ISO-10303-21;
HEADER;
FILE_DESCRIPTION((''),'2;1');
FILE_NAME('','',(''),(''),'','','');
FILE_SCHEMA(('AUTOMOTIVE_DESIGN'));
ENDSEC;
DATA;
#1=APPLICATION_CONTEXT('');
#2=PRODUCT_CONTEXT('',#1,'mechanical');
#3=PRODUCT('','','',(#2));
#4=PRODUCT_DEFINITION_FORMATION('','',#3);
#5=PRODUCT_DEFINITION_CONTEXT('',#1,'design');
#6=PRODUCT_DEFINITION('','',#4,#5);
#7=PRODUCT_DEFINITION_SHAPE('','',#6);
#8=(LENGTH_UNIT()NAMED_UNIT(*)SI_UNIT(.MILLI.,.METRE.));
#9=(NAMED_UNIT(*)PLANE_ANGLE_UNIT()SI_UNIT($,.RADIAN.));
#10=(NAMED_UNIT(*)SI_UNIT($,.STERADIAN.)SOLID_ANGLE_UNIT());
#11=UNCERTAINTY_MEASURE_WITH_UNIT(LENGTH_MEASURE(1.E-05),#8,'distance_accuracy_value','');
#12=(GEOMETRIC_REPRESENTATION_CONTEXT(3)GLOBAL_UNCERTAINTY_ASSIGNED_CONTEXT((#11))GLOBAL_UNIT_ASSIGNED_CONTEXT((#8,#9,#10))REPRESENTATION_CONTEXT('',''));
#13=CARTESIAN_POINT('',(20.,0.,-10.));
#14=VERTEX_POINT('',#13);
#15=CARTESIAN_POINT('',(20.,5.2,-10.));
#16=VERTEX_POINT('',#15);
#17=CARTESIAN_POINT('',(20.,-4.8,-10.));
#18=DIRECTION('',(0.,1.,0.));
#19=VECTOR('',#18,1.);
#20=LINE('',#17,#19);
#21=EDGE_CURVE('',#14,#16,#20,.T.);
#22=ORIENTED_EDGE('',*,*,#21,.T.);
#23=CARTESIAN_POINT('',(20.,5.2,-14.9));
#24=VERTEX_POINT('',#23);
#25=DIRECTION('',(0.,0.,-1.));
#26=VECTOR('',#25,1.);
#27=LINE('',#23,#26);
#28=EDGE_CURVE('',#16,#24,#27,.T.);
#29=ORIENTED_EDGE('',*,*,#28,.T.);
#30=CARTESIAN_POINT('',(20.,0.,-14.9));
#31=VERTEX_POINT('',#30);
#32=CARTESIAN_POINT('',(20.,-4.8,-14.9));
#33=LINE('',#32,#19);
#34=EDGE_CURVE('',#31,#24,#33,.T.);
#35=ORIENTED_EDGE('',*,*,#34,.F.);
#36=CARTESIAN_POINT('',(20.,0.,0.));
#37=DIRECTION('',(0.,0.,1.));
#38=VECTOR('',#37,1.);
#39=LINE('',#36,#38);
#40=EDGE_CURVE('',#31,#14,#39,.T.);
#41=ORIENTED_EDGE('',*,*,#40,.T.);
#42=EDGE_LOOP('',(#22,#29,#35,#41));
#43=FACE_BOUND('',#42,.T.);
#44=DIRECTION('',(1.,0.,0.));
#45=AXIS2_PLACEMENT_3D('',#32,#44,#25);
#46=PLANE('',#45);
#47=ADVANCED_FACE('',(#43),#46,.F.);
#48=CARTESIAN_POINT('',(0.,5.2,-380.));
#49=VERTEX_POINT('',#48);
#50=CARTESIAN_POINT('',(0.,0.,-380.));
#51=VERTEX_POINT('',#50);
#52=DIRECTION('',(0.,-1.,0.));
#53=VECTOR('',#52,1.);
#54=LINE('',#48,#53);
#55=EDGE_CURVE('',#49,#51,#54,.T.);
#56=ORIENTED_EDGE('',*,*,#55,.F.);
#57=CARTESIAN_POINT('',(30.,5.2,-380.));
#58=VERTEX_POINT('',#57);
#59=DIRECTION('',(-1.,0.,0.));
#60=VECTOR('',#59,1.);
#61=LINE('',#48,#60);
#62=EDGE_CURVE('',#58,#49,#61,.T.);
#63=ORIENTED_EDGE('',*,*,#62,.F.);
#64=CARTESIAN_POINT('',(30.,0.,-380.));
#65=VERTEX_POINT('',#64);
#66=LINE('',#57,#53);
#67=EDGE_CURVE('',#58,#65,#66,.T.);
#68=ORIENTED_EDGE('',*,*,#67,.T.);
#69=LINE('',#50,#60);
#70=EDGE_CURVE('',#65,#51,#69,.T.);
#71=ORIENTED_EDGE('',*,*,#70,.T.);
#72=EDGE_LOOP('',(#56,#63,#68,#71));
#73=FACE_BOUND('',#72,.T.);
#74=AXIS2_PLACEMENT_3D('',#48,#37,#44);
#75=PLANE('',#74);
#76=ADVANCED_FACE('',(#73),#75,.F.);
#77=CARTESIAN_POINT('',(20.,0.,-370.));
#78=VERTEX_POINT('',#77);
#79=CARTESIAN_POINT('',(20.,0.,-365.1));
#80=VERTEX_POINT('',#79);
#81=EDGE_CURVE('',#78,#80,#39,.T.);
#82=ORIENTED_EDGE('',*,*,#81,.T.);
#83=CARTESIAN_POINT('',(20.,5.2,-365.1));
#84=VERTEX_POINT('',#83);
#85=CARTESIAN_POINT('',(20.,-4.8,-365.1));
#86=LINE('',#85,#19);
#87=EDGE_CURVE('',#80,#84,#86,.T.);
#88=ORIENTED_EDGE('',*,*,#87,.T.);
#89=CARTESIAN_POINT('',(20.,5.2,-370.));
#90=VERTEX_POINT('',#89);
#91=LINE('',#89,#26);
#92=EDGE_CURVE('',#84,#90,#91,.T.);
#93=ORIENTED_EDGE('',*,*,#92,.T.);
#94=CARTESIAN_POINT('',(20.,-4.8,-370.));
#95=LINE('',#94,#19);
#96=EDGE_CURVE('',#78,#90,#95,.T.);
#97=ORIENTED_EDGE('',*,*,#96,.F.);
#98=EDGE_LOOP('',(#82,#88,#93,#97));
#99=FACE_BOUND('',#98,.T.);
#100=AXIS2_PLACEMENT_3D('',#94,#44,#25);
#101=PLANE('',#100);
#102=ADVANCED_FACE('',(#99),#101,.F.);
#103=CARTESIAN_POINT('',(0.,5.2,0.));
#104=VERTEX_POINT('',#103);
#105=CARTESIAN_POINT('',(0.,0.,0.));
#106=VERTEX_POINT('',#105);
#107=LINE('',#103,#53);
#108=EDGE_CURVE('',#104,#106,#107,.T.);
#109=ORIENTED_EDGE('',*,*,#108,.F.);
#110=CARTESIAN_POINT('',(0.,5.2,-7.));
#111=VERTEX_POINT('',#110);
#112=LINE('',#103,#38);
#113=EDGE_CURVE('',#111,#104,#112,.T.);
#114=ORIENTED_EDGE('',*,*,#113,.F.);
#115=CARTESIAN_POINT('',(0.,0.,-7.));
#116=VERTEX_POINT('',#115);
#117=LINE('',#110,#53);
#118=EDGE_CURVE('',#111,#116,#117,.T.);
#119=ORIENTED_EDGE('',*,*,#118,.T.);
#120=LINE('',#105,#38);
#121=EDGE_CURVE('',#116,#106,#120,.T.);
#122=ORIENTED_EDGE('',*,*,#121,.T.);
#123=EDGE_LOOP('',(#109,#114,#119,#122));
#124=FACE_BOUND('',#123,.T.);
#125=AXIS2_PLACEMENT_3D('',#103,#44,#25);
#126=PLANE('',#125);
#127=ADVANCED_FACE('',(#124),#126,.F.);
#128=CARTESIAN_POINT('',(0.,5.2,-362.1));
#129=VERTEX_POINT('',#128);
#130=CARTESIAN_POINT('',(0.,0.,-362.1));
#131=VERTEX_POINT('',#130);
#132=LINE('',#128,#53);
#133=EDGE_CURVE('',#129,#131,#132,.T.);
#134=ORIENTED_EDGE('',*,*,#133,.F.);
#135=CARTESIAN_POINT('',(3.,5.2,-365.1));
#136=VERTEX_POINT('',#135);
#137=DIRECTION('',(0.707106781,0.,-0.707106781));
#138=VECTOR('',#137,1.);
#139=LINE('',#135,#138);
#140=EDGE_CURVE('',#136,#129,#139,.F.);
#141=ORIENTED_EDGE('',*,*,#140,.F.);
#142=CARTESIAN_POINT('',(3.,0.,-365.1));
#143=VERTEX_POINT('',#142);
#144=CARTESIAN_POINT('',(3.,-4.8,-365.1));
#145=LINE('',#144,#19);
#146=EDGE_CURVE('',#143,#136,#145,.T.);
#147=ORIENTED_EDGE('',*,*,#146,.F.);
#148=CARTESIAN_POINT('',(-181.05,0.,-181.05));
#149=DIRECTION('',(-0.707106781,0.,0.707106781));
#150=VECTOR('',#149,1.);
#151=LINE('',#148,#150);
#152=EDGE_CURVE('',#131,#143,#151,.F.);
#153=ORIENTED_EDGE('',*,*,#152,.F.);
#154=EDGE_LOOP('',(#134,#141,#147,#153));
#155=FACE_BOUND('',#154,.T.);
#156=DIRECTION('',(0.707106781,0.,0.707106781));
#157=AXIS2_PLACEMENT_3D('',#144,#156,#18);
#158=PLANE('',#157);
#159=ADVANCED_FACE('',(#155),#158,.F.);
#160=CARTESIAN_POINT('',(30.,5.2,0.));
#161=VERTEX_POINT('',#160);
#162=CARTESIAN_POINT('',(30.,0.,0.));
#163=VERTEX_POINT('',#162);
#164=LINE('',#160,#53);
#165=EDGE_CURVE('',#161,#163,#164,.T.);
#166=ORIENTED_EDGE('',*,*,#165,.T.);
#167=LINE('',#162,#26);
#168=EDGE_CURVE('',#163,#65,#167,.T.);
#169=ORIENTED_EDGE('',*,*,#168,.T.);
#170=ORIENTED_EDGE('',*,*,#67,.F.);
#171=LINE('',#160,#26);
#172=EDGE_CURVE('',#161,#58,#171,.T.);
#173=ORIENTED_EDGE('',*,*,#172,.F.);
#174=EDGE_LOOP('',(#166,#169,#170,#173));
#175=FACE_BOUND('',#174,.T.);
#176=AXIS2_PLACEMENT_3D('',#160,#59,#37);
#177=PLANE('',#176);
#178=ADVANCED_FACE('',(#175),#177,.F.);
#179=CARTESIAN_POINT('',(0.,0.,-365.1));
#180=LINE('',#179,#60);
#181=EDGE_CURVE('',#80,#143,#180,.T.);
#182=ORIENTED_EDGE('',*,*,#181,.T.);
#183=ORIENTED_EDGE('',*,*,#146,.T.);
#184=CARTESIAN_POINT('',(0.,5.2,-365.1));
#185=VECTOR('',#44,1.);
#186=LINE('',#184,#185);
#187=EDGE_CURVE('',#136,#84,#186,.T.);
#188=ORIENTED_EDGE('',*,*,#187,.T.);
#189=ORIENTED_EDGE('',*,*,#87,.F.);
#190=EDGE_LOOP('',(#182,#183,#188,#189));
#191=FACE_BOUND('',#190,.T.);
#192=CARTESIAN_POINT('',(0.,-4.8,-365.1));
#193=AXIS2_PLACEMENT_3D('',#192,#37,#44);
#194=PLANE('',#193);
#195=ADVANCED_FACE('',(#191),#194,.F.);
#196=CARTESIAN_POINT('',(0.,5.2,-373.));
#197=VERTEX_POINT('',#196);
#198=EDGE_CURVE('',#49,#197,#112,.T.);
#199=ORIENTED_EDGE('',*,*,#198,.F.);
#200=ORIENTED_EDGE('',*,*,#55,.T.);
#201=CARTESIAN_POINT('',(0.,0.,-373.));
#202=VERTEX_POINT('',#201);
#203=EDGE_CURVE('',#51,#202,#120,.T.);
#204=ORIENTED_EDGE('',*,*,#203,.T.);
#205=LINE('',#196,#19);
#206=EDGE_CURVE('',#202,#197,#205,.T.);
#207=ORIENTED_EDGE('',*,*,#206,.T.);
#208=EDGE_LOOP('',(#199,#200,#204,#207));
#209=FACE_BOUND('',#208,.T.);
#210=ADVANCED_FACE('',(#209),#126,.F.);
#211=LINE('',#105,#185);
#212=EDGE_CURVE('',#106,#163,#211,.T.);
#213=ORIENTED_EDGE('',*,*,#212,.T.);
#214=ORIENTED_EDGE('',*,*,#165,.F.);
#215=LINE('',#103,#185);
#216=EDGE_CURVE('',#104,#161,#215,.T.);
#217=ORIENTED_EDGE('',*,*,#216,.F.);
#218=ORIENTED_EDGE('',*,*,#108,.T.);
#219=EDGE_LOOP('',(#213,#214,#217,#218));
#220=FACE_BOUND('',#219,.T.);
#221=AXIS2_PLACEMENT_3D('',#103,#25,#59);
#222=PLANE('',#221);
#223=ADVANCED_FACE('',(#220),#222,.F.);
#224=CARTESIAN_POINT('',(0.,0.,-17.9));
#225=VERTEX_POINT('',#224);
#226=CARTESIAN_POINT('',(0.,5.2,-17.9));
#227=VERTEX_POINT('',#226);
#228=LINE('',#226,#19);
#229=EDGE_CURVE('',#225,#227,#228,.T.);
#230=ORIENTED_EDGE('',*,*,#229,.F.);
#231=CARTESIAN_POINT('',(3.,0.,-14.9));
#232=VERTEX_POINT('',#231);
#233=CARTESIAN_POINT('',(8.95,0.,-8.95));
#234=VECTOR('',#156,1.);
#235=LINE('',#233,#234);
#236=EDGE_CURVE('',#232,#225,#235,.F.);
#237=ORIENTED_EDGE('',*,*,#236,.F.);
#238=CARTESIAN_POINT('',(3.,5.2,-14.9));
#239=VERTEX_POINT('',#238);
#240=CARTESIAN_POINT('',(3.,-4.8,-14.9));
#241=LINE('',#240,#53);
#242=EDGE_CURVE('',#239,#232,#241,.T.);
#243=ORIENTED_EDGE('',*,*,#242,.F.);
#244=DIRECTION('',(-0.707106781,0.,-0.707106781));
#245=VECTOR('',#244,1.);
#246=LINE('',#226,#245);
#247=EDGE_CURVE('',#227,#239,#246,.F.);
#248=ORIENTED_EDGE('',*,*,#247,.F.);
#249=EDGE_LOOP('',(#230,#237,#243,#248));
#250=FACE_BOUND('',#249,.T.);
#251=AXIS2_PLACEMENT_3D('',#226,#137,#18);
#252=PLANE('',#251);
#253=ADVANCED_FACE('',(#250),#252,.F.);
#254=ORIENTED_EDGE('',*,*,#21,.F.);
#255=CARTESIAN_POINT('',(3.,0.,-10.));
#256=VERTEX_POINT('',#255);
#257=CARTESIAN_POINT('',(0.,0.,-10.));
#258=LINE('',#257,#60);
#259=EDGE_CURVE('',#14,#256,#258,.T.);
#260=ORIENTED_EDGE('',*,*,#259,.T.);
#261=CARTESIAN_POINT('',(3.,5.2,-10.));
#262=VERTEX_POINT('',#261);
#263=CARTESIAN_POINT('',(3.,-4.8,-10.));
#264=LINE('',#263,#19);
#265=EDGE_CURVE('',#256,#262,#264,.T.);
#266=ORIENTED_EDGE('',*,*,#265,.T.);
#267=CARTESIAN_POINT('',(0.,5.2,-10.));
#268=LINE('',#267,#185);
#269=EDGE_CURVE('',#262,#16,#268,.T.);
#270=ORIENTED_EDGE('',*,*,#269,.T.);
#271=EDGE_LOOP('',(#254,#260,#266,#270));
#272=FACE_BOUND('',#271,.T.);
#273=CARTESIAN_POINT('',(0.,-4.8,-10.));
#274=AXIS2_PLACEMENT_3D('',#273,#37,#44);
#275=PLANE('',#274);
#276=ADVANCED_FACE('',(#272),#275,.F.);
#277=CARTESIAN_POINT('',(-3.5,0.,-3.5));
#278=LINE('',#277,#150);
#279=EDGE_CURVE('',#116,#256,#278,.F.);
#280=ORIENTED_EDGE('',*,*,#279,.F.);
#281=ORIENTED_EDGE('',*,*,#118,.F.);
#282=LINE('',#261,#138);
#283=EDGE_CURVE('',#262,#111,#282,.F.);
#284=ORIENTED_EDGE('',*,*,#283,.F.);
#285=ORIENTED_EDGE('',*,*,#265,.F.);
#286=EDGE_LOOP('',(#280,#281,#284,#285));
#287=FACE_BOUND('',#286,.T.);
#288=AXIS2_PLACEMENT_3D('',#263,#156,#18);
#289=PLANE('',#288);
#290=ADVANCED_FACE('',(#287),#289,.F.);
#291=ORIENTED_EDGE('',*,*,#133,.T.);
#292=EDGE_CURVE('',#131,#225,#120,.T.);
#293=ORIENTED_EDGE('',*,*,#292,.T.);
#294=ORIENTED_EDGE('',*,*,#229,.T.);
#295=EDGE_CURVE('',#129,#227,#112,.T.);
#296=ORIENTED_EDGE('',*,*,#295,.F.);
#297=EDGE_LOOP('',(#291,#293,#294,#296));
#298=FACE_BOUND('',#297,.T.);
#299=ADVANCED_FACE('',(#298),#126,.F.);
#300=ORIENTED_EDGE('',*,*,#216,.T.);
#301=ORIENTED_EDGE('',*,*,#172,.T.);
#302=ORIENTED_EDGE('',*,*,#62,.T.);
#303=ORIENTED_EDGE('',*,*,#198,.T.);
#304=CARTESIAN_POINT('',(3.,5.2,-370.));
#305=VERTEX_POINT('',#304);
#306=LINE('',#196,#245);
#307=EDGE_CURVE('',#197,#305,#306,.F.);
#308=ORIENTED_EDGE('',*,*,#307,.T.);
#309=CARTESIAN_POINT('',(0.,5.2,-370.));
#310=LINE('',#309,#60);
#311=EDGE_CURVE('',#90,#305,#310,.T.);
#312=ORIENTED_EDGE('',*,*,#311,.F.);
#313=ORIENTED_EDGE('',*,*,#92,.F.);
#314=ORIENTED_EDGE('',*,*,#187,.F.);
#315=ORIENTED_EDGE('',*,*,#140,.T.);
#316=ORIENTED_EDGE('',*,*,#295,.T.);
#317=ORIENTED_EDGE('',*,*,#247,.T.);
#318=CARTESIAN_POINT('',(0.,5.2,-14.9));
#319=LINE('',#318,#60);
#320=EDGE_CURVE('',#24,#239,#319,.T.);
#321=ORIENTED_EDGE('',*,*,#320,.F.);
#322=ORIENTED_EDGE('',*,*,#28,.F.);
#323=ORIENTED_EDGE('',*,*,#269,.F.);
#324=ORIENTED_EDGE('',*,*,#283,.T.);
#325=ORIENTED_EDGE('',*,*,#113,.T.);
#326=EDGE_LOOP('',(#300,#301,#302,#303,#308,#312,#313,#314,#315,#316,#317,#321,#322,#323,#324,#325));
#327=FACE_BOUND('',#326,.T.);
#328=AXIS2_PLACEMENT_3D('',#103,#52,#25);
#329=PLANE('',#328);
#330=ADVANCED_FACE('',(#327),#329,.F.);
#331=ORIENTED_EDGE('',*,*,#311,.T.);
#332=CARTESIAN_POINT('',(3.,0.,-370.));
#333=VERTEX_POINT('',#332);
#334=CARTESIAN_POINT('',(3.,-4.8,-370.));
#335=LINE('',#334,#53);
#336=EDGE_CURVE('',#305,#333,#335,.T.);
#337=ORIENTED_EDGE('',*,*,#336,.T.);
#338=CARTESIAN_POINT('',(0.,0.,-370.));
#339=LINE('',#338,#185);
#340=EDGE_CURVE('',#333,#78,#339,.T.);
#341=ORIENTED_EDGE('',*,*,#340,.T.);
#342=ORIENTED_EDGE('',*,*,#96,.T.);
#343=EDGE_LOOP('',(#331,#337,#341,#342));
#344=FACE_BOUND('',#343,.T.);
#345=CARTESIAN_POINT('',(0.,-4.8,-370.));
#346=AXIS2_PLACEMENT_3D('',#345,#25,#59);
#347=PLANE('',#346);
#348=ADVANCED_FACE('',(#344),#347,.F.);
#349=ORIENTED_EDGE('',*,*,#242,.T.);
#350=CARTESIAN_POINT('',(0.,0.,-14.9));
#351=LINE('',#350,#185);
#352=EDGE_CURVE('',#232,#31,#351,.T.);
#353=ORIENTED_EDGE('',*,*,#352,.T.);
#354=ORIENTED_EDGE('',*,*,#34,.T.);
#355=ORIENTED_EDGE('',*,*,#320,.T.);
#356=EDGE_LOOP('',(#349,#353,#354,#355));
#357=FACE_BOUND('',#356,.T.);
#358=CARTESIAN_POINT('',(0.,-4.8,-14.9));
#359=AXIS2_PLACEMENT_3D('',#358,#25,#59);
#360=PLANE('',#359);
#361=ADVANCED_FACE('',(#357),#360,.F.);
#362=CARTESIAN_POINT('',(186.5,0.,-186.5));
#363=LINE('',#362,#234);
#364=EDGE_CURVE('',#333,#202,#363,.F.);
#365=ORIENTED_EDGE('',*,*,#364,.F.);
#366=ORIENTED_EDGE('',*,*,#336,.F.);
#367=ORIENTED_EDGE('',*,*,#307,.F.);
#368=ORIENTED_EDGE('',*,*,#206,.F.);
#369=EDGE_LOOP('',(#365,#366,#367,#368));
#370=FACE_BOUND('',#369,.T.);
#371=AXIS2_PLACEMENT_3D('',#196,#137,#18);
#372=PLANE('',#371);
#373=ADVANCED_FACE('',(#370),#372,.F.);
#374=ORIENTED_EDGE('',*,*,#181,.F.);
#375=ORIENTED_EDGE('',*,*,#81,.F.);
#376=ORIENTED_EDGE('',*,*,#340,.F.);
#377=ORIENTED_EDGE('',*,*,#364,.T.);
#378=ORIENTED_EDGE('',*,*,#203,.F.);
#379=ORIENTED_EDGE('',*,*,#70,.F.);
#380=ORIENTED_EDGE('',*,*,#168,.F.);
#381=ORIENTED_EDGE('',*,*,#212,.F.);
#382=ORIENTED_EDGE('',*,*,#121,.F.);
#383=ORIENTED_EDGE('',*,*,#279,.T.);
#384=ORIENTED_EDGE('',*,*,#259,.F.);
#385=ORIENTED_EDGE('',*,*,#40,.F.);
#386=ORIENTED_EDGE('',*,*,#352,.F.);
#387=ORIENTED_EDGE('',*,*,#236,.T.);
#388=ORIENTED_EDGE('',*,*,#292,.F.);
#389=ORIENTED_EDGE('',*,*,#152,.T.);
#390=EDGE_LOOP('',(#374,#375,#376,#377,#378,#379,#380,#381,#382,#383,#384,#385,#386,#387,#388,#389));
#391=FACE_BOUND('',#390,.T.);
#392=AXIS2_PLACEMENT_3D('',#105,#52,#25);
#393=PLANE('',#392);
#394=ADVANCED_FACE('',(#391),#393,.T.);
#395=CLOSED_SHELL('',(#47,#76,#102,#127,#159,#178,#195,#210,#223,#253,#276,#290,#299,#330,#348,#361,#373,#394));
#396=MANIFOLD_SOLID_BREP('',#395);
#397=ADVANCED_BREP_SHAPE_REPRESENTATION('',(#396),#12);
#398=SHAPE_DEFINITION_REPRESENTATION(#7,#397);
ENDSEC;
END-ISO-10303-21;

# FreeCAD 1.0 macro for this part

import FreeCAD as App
import Part
import Sketcher
from FreeCAD import Vector
Q = App.Units.Quantity


def edges_at(feature, points):
    """Names of the edges that pass closest to the given points."""
    edges = feature.Shape.Edges
    near = lambda p: min(range(len(edges)), key=lambda i: edges[i].distToShape(Part.Vertex(*p))[0])
    return sorted({f"Edge{near(p) + 1}" for p in points})

doc = App.newDocument("Part")
body = doc.addObject("PartDesign::Body", "Body")

sketch1 = doc.addObject("Sketcher::SketchObject", "Sketch")
body.addObject(sketch1)
sketch1.AttachmentSupport = (doc.XZ_Plane, [""])
sketch1.MapMode = "FlatFace"
sketch1.addGeometry(Part.LineSegment(Vector(0, -380, 0), Vector(0, 0, 0)), False)
sketch1.addGeometry(Part.LineSegment(Vector(0, 0, 0), Vector(30, 0, 0)), False)
sketch1.addGeometry(Part.LineSegment(Vector(30, 0, 0), Vector(30, -380, 0)), False)
sketch1.addGeometry(Part.LineSegment(Vector(30, -380, 0), Vector(0, -380, 0)), False)
sketch1.addConstraint(Sketcher.Constraint("Coincident", 0, 2, 1, 1))
sketch1.addConstraint(Sketcher.Constraint("Coincident", 1, 2, 2, 1))
sketch1.addConstraint(Sketcher.Constraint("Coincident", 2, 2, 3, 1))
sketch1.addConstraint(Sketcher.Constraint("Coincident", 3, 2, 0, 1))
sketch1.addConstraint(Sketcher.Constraint("Vertical", 0))
sketch1.addConstraint(Sketcher.Constraint("Horizontal", 1))
sketch1.addConstraint(Sketcher.Constraint("Vertical", 2))
sketch1.addConstraint(Sketcher.Constraint("Horizontal", 3))
sketch1.addConstraint(Sketcher.Constraint("Coincident", 0, 2, -1, 1))
sketch1.addConstraint(Sketcher.Constraint("DistanceX", 1, 1, 1, 2, Q("30 mm")))
sketch1.addConstraint(Sketcher.Constraint("DistanceY", 0, 1, 0, 2, Q("380 mm")))
pad1 = doc.addObject("PartDesign::Pad", "Pad")
body.addObject(pad1)
pad1.Profile = sketch1
pad1.Length = 5.2
pad1.Reversed = True

sketch2 = doc.addObject("Sketcher::SketchObject", "Sketch001")
body.addObject(sketch2)
sketch2.AttachmentSupport = (doc.XZ_Plane, [""])
sketch2.MapMode = "FlatFace"
sketch2.AttachmentOffset = App.Placement(Vector(0, 0, -5.2), App.Rotation())
sketch2.addGeometry(Part.LineSegment(Vector(0, -370, 0), Vector(0, -365.1, 0)), False)
sketch2.addGeometry(Part.LineSegment(Vector(0, -365.1, 0), Vector(20, -365.1, 0)), False)
sketch2.addGeometry(Part.LineSegment(Vector(20, -365.1, 0), Vector(20, -370, 0)), False)
sketch2.addGeometry(Part.LineSegment(Vector(20, -370, 0), Vector(0, -370, 0)), False)
sketch2.addGeometry(Part.LineSegment(Vector(0, -14.9, 0), Vector(0, -10, 0)), False)
sketch2.addGeometry(Part.LineSegment(Vector(0, -10, 0), Vector(20, -10, 0)), False)
sketch2.addGeometry(Part.LineSegment(Vector(20, -10, 0), Vector(20, -14.9, 0)), False)
sketch2.addGeometry(Part.LineSegment(Vector(20, -14.9, 0), Vector(0, -14.9, 0)), False)
sketch2.addConstraint(Sketcher.Constraint("Coincident", 0, 2, 1, 1))
sketch2.addConstraint(Sketcher.Constraint("Coincident", 1, 2, 2, 1))
sketch2.addConstraint(Sketcher.Constraint("Coincident", 2, 2, 3, 1))
sketch2.addConstraint(Sketcher.Constraint("Coincident", 3, 2, 0, 1))
sketch2.addConstraint(Sketcher.Constraint("Coincident", 4, 2, 5, 1))
sketch2.addConstraint(Sketcher.Constraint("Coincident", 5, 2, 6, 1))
sketch2.addConstraint(Sketcher.Constraint("Coincident", 6, 2, 7, 1))
sketch2.addConstraint(Sketcher.Constraint("Coincident", 7, 2, 4, 1))
sketch2.addConstraint(Sketcher.Constraint("Vertical", 0))
sketch2.addConstraint(Sketcher.Constraint("Horizontal", 1))
sketch2.addConstraint(Sketcher.Constraint("Vertical", 2))
sketch2.addConstraint(Sketcher.Constraint("Horizontal", 3))
sketch2.addConstraint(Sketcher.Constraint("Vertical", 4))
sketch2.addConstraint(Sketcher.Constraint("Horizontal", 5))
sketch2.addConstraint(Sketcher.Constraint("Vertical", 6))
sketch2.addConstraint(Sketcher.Constraint("Horizontal", 7))
sketch2.addConstraint(Sketcher.Constraint("PointOnObject", 0, 2, -2))
sketch2.addConstraint(Sketcher.Constraint("PointOnObject", 4, 2, -2))
sketch2.addConstraint(Sketcher.Constraint("Vertical", 2, 2, 5, 2))
sketch2.addConstraint(Sketcher.Constraint("Equal", 2, 4))
sketch2.addConstraint(Sketcher.Constraint("DistanceX", 1, 1, 1, 2, Q("20 mm")))
sketch2.addConstraint(Sketcher.Constraint("DistanceY", 0, 1, 0, 2, Q("4.9 mm")))
sketch2.addConstraint(Sketcher.Constraint("DistanceY", 2, 2, -1, 1, Q("370 mm")))
sketch2.addConstraint(Sketcher.Constraint("DistanceY", 4, 2, -1, 1, Q("10 mm")))
pocket1 = doc.addObject("PartDesign::Pocket", "Pocket")
body.addObject(pocket1)
pocket1.Profile = sketch2
pocket1.Length = 10
pocket1.Reversed = True
doc.recompute()

chamfer = doc.addObject("PartDesign::Chamfer", "Chamfer")
body.addObject(chamfer)
chamfer.Base = (pocket1, edges_at(pocket1, [
    (0, 2.6, -365.1),
    (0, 2.6, -370),
    (0, 2.6, -10),
    (0, 2.6, -14.9),
]))
chamfer.Size = 3

doc.recompute()
